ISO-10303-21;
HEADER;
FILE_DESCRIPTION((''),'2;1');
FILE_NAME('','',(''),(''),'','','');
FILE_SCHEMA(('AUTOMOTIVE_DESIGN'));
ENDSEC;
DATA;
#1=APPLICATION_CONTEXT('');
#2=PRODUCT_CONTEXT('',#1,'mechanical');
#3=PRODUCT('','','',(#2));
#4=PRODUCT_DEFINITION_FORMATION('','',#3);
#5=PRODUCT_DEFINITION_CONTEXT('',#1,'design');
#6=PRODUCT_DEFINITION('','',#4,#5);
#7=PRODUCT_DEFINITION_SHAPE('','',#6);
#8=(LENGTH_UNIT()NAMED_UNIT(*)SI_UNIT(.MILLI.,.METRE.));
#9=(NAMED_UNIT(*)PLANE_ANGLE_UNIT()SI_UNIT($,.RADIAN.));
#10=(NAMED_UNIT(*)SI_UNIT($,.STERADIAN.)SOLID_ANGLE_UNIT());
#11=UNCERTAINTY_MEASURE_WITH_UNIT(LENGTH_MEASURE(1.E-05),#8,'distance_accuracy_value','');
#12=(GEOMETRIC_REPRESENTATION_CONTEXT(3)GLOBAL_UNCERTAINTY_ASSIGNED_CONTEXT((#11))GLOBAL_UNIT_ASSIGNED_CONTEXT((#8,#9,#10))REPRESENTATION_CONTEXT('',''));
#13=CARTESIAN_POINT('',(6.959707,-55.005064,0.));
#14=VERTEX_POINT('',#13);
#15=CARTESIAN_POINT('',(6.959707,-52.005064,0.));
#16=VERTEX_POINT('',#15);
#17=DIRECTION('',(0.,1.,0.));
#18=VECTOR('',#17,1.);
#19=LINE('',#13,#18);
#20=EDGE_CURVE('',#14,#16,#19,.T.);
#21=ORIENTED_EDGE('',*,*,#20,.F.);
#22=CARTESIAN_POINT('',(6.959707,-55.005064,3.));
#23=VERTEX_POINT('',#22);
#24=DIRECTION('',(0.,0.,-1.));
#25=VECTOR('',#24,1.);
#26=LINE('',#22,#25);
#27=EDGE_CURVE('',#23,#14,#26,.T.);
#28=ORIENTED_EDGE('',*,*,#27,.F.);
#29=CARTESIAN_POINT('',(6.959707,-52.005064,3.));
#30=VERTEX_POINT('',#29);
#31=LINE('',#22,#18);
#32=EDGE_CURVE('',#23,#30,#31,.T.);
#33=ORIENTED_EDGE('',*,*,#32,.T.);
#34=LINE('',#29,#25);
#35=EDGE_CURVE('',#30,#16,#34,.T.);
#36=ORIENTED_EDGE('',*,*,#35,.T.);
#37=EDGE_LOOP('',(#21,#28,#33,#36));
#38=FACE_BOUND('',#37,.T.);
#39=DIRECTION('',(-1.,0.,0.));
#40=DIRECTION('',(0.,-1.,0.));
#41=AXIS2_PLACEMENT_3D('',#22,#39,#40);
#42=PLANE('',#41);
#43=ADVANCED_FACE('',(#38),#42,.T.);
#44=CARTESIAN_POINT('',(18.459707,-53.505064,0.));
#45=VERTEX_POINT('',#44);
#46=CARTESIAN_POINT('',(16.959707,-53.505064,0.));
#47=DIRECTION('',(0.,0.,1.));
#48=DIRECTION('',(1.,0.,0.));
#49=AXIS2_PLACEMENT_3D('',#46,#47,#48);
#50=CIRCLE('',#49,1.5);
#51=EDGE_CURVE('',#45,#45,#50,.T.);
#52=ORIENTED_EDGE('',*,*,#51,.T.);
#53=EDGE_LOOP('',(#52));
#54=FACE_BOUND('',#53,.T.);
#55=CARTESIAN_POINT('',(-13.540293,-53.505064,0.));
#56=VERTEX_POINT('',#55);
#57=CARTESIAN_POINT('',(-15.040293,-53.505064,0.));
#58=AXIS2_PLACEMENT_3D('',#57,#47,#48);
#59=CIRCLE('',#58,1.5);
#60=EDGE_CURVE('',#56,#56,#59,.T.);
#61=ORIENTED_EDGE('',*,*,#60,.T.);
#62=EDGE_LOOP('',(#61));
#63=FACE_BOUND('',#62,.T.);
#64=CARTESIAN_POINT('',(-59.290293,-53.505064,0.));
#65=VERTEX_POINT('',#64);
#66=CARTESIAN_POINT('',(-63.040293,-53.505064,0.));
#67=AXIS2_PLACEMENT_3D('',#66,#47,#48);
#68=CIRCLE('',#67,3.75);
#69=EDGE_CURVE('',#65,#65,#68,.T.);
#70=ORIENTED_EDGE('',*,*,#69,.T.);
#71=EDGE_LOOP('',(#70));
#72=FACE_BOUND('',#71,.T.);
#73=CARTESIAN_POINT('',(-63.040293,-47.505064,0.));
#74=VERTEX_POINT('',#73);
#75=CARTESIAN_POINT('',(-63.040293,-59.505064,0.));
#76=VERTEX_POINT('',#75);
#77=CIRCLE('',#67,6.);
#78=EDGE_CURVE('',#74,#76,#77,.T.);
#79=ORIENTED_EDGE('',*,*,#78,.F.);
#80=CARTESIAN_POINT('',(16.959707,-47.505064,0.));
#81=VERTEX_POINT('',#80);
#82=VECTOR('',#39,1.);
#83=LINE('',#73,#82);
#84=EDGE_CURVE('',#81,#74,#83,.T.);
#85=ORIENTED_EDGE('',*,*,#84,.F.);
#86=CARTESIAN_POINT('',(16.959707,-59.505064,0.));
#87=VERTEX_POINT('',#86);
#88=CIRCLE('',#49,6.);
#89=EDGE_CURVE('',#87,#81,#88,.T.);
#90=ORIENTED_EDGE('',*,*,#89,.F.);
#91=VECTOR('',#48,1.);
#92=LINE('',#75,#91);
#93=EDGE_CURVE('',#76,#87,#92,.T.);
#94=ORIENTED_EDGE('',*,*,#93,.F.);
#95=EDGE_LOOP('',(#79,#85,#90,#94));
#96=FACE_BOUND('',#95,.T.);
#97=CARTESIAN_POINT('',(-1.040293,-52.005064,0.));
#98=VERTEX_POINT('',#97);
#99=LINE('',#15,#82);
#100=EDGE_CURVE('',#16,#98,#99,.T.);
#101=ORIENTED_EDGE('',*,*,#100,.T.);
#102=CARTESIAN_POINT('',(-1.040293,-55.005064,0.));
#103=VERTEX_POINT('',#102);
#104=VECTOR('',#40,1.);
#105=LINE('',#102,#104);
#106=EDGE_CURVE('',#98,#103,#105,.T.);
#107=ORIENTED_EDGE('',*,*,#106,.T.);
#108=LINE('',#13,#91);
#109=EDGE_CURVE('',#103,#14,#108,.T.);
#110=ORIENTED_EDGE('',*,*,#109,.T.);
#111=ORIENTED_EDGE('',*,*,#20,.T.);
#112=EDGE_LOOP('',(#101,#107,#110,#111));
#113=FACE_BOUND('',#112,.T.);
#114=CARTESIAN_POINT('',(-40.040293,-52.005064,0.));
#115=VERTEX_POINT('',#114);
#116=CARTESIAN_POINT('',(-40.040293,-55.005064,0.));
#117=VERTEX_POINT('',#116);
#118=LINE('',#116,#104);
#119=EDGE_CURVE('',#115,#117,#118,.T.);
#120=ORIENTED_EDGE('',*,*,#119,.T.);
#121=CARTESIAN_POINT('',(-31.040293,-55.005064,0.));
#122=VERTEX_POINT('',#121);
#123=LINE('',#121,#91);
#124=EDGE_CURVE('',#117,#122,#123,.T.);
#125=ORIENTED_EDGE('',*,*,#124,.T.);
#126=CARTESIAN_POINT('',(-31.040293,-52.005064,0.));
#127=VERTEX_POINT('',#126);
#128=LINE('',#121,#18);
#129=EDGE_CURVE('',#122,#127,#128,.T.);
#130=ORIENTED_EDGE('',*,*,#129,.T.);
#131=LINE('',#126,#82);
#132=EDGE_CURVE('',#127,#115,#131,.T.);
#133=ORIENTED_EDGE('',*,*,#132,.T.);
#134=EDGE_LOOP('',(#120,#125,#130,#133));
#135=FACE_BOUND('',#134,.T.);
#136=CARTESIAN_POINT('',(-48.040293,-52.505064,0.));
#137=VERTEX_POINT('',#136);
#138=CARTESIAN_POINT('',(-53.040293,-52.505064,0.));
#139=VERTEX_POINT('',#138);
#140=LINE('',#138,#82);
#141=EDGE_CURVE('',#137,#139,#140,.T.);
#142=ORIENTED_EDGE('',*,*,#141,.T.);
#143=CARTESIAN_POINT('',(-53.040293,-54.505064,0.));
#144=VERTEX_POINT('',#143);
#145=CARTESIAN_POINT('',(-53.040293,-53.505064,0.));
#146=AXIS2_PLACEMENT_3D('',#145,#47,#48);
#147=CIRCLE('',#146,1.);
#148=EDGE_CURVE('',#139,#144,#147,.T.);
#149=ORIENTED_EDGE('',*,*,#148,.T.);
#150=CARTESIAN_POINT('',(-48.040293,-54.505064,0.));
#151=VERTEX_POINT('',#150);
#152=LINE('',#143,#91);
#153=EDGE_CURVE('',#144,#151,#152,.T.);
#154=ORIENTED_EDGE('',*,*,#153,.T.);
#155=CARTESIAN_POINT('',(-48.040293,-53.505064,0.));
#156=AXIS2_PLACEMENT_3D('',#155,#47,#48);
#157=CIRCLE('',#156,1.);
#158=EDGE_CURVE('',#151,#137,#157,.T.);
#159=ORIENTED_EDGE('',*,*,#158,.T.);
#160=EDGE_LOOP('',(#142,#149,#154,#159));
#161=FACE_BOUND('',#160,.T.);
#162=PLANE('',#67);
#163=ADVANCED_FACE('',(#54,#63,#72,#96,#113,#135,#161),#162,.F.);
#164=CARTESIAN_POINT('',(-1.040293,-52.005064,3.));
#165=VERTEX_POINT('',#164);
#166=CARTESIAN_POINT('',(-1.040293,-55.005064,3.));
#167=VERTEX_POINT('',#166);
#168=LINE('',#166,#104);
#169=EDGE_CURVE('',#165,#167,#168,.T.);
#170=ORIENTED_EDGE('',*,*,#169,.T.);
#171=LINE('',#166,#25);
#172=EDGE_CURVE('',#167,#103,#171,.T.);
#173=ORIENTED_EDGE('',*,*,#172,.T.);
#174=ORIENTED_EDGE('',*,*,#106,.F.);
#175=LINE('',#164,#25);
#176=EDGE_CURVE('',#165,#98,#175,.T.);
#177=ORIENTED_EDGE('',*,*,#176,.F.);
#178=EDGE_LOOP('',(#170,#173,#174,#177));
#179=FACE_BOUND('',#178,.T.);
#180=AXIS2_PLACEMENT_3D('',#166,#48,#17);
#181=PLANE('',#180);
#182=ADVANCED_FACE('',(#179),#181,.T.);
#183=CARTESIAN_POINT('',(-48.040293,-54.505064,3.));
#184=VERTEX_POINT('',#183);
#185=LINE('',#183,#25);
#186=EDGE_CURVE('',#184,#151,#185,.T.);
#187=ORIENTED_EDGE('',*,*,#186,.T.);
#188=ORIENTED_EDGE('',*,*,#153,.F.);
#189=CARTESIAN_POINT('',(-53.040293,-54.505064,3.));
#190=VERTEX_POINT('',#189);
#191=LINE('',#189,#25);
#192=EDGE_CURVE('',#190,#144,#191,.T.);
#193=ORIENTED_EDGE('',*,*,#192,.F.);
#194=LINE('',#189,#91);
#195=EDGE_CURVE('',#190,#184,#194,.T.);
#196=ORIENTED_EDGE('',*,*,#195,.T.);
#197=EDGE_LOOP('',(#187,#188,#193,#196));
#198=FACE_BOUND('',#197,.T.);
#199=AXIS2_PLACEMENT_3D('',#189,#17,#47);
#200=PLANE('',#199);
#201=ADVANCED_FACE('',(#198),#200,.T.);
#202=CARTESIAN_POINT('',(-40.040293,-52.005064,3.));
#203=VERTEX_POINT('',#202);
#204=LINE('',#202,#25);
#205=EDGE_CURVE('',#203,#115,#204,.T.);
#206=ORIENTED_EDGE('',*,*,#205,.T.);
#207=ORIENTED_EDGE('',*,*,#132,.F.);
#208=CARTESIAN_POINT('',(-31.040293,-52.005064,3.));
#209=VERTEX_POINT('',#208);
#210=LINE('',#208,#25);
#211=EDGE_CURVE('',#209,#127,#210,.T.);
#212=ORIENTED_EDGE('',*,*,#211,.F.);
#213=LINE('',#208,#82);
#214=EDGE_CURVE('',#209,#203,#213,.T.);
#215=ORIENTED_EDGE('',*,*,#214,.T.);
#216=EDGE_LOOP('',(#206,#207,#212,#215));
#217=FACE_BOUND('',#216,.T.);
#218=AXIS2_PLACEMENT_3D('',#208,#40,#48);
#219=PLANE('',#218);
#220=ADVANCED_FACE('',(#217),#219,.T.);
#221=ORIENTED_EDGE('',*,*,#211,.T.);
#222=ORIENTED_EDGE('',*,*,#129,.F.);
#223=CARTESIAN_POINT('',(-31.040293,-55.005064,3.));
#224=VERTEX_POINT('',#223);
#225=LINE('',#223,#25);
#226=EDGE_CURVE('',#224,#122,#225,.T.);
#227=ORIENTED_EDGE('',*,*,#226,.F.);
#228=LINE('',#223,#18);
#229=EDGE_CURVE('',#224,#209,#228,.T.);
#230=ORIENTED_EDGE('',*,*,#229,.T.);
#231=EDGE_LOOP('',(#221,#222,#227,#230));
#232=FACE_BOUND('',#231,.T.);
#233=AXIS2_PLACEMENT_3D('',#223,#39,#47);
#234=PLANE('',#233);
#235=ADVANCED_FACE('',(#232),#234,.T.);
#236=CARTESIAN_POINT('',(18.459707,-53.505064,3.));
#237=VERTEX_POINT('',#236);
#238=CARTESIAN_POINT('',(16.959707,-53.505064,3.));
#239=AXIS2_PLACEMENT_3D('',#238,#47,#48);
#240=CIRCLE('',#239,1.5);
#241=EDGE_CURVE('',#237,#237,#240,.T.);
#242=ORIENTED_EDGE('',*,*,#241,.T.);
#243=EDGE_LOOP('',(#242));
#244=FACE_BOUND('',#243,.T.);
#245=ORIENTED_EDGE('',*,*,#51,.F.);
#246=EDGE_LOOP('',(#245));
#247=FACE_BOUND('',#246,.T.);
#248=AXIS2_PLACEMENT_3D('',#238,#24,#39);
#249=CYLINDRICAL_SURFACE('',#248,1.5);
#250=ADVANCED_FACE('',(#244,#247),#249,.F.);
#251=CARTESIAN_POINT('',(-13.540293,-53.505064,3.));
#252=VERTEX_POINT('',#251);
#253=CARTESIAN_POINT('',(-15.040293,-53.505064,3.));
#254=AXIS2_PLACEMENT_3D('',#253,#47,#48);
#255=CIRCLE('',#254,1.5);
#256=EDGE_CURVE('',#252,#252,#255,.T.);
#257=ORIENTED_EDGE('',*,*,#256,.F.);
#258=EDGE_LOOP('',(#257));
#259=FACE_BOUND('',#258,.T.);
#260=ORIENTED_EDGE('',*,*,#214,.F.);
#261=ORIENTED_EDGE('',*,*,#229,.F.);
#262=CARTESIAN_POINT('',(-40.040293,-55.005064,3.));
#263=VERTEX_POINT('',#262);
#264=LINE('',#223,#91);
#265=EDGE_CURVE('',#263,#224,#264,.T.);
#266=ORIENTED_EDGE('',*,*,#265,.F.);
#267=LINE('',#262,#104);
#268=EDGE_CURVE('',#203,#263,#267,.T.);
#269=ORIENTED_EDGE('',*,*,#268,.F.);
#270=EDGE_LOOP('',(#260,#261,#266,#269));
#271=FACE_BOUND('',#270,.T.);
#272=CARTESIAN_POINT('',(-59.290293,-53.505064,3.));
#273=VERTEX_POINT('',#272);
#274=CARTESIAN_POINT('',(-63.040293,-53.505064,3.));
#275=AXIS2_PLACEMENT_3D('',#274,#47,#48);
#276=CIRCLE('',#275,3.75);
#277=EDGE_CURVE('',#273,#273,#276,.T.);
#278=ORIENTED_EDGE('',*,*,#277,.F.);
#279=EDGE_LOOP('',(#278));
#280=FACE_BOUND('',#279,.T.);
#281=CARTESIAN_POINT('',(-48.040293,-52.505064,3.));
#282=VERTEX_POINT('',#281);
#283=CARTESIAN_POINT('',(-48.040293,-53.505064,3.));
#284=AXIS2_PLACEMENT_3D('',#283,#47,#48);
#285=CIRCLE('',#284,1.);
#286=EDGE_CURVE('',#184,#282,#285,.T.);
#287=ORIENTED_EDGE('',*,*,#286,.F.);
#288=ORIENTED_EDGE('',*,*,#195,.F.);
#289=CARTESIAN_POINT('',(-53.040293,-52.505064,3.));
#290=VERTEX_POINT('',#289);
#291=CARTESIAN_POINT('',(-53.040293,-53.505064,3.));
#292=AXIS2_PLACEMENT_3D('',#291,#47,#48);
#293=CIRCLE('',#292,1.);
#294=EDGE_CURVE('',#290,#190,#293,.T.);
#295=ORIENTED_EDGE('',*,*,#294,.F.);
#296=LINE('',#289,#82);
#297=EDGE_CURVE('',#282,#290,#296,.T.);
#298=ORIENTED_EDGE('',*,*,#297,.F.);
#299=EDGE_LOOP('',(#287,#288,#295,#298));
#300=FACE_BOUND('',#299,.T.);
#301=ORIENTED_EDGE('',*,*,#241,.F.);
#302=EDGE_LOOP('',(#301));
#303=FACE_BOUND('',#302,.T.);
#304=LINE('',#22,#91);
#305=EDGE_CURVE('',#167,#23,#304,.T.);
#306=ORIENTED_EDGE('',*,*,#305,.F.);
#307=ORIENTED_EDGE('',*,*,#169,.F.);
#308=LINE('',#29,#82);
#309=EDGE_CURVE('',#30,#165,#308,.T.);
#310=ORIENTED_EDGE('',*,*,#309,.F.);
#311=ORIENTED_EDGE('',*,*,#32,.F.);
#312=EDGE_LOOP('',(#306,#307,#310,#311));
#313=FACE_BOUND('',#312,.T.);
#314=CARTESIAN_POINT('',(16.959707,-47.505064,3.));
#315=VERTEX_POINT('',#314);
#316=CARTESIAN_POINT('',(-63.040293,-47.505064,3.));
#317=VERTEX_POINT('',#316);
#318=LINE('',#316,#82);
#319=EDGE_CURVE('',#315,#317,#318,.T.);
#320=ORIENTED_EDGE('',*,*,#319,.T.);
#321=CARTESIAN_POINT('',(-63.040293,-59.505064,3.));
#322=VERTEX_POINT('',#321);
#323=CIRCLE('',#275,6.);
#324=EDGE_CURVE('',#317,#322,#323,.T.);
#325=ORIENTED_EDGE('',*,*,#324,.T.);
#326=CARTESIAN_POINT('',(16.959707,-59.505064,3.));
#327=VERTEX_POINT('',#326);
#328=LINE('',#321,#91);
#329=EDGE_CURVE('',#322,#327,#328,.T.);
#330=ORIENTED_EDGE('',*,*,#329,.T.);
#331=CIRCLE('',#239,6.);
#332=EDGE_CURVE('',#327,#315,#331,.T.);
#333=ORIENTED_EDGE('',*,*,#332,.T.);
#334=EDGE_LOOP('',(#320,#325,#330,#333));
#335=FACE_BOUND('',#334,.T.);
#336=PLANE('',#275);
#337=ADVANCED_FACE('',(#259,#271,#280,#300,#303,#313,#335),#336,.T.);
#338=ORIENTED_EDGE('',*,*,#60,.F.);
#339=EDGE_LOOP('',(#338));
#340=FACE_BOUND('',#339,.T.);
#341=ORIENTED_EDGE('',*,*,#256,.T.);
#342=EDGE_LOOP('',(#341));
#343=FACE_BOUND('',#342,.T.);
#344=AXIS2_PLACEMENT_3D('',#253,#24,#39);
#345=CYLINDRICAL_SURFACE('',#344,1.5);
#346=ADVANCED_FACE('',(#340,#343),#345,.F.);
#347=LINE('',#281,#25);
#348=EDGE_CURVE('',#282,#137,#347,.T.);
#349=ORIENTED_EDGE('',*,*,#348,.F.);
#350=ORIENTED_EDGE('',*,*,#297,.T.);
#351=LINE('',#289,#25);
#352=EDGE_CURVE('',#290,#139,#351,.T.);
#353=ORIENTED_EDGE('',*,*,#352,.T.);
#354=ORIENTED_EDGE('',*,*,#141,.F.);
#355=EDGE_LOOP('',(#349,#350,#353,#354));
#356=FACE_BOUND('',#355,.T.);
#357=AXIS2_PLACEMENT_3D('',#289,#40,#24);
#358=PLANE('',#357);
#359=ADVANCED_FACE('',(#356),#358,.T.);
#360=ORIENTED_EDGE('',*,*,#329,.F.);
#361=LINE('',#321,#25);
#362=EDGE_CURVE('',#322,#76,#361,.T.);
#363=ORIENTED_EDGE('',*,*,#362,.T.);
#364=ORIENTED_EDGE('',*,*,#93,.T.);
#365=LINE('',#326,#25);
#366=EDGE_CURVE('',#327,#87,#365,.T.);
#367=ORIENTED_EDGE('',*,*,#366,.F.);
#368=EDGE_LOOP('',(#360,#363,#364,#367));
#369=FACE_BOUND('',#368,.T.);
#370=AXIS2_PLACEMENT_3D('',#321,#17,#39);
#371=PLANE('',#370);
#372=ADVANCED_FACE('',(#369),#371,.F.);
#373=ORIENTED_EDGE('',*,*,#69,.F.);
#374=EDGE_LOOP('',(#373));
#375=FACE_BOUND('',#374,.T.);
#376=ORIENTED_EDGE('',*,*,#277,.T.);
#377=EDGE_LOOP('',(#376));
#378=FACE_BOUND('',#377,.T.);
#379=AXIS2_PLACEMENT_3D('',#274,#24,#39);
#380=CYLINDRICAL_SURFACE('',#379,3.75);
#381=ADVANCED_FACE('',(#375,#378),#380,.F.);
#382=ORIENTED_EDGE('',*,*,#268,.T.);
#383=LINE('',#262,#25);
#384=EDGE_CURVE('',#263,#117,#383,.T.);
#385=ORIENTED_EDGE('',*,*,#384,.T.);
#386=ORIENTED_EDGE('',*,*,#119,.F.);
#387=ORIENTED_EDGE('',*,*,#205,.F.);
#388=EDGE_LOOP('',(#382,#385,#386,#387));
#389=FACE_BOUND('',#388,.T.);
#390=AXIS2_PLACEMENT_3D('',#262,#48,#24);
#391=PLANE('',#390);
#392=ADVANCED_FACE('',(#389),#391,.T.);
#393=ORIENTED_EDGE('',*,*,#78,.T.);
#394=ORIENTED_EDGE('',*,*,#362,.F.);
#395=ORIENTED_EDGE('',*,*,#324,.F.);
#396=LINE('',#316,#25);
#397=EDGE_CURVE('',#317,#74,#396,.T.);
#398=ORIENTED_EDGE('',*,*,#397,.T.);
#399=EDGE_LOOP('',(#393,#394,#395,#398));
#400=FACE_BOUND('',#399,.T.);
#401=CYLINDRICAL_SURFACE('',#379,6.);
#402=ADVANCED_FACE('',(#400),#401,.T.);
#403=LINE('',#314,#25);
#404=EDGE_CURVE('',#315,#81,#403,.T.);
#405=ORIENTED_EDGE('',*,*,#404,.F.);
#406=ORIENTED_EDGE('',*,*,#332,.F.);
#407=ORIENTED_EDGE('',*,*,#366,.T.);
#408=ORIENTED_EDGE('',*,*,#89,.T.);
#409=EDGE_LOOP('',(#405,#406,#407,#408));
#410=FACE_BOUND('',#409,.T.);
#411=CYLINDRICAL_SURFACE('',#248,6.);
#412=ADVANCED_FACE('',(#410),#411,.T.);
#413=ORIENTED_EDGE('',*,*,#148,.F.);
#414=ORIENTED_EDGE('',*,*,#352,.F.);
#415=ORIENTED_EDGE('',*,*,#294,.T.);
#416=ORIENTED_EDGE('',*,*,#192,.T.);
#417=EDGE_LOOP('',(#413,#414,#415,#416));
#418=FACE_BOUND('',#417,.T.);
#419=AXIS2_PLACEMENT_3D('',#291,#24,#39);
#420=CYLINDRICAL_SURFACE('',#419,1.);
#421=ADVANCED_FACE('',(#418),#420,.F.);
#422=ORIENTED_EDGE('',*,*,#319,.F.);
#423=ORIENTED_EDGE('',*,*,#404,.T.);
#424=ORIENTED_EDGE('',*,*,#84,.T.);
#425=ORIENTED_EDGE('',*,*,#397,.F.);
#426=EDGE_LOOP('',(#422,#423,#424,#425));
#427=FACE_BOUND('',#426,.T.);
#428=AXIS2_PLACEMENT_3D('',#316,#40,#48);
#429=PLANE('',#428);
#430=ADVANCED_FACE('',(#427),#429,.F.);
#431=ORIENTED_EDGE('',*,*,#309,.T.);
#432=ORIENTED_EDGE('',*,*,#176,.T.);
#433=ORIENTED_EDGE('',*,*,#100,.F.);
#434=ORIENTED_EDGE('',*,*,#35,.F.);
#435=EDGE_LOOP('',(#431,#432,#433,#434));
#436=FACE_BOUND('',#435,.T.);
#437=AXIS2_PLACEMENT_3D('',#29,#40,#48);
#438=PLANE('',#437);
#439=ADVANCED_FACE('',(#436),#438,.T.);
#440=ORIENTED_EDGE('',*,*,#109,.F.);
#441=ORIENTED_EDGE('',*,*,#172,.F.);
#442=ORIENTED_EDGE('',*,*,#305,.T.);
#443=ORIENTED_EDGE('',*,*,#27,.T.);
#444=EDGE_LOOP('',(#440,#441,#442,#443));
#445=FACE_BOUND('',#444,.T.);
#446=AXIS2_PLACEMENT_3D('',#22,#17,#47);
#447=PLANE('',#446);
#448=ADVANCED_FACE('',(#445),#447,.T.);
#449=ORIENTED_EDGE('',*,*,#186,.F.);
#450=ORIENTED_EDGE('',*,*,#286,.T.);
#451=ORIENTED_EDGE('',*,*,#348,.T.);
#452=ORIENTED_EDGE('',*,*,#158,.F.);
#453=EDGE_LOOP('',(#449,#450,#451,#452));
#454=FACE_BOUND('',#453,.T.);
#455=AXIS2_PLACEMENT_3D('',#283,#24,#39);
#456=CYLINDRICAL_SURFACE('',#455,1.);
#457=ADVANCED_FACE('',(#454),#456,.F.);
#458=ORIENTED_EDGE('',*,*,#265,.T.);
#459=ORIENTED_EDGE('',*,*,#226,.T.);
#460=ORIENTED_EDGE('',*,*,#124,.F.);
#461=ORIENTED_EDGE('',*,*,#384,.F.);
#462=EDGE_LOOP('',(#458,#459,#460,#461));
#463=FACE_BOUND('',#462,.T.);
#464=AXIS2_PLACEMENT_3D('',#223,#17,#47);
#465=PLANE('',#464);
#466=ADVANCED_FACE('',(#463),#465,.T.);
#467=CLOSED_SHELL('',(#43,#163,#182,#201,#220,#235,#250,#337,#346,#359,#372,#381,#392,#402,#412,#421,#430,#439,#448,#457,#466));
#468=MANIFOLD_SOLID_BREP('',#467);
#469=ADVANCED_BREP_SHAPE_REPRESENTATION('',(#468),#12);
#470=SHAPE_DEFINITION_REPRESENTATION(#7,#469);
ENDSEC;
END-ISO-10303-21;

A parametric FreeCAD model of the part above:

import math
import FreeCAD as App
import Part
import Sketcher

V = App.Vector
Q = App.Units.Quantity


def add_polygon(sketch, points):
    """Adds a closed chain of lines whose ends are joined by coincident constraints."""
    first, n = sketch.GeometryCount, len(points)
    for a, b in zip(points, points[1:] + points[:1]):
        sketch.addGeometry(Part.LineSegment(App.Vector(*a, 0), App.Vector(*b, 0)), False)
    for i in range(n):
        sketch.addConstraint(Sketcher.Constraint("Coincident", first + i, 2, first + (i + 1) % n, 1))

doc = App.newDocument("Part")
body = doc.addObject("PartDesign::Body", "Body")

# Sketch on XY plane
sketch1 = body.newObject("Sketcher::SketchObject", "Sketch")
sketch1.AttachmentSupport = (doc.getObject("XY_Plane"), [""])
sketch1.MapMode = "FlatFace"
sketch1.addGeometry(Part.LineSegment(V(16.959707, -47.505064, 0), V(-63.040293, -47.505064, 0)), False)  # 0
sketch1.addGeometry(Part.ArcOfCircle(Part.Circle(V(-63.040293, -53.505064, 0), V(0, 0, 1), 6), math.radians(90), math.radians(270)), False)  # 1
sketch1.addGeometry(Part.LineSegment(V(-63.040293, -59.505064, 0), V(16.959707, -59.505064, 0)), False)  # 2
sketch1.addGeometry(Part.ArcOfCircle(Part.Circle(V(16.959707, -53.505064, 0), V(0, 0, 1), 6), math.radians(-90), math.radians(90)), False)  # 3
sketch1.addGeometry(Part.Circle(V(16.959707, -53.505064, 0), V(0, 0, 1), 1.5), False)  # 4
add_polygon(sketch1, [(-1.040293, -55.005064), (-1.040293, -52.005064), (6.959707, -52.005064), (6.959707, -55.005064)])  # lines 5-8
sketch1.addGeometry(Part.Circle(V(-15.040293, -53.505064, 0), V(0, 0, 1), 1.5), False)  # 9
add_polygon(sketch1, [(-40.040293, -55.005064), (-40.040293, -52.005064), (-31.040293, -52.005064), (-31.040293, -55.005064)])  # lines 10-13
sketch1.addGeometry(Part.LineSegment(V(-53.040293, -52.505064, 0), V(-48.040293, -52.505064, 0)), False)  # 14
sketch1.addGeometry(Part.ArcOfCircle(Part.Circle(V(-48.040293, -53.505064, 0), V(0, 0, 1), 1), math.radians(-90), math.radians(90)), False)  # 15
sketch1.addGeometry(Part.LineSegment(V(-48.040293, -54.505064, 0), V(-53.040293, -54.505064, 0)), False)  # 16
sketch1.addGeometry(Part.ArcOfCircle(Part.Circle(V(-53.040293, -53.505064, 0), V(0, 0, 1), 1), math.radians(90), math.radians(270)), False)  # 17
sketch1.addGeometry(Part.Circle(V(-63.040293, -53.505064, 0), V(0, 0, 1), 3.75), False)  # 18
sketch1.addConstraint([
    Sketcher.Constraint("Tangent", 0, 2, 1, 1),
    Sketcher.Constraint("Tangent", 1, 2, 2, 1),
    Sketcher.Constraint("Tangent", 2, 2, 3, 1),
    Sketcher.Constraint("Tangent", 3, 2, 0, 1),
    Sketcher.Constraint("Tangent", 14, 2, 15, 2),
    Sketcher.Constraint("Tangent", 15, 1, 16, 1),
    Sketcher.Constraint("Tangent", 16, 2, 17, 2),
    Sketcher.Constraint("Tangent", 17, 1, 14, 1),
    Sketcher.Constraint("Horizontal", 0),
    Sketcher.Constraint("Horizontal", 2),
    Sketcher.Constraint("Vertical", 5),
    Sketcher.Constraint("Horizontal", 6),
    Sketcher.Constraint("Vertical", 7),
    Sketcher.Constraint("Horizontal", 8),
    Sketcher.Constraint("Vertical", 10),
    Sketcher.Constraint("Horizontal", 11),
    Sketcher.Constraint("Vertical", 12),
    Sketcher.Constraint("Horizontal", 13),
    Sketcher.Constraint("Horizontal", 14),
    Sketcher.Constraint("Horizontal", 16),
    Sketcher.Constraint("Coincident", 4, 3, 3, 3),
    Sketcher.Constraint("Coincident", 18, 3, 1, 3),
    Sketcher.Constraint("Equal", 4, 9),
    Sketcher.Constraint("Horizontal", 4, 3, 9, 3),
    Sketcher.Constraint("Horizontal", 9, 3, 15, 3),
    Sketcher.Constraint("Horizontal", 6, 2, 10, 2),
    Sketcher.Constraint("Horizontal", 8, 2, 12, 2),
    Sketcher.Constraint("Diameter", 4, Q("3 mm")),
    Sketcher.Constraint("Radius", 1, Q("6 mm")),
    Sketcher.Constraint("Radius", 15, Q("1 mm")),
    Sketcher.Constraint("Diameter", 18, Q("7.5 mm")),
    Sketcher.Constraint("DistanceX", 0, 2, 0, 1, Q("80 mm")),
    Sketcher.Constraint("DistanceX", 6, 1, 6, 2, Q("8 mm")),
    Sketcher.Constraint("DistanceX", 11, 1, 11, 2, Q("9 mm")),
    Sketcher.Constraint("DistanceX", 14, 1, 14, 2, Q("5 mm")),
    Sketcher.Constraint("DistanceY", 5, 1, 5, 2, Q("3 mm")),
    Sketcher.Constraint("DistanceX", 9, 3, 3, 3, Q("32 mm")),
    Sketcher.Constraint("DistanceX", 1, 3, 15, 3, Q("15 mm")),
    Sketcher.Constraint("DistanceX", 9, 3, 5, 2, Q("14 mm")),
    Sketcher.Constraint("DistanceX", 15, 3, 10, 2, Q("8 mm")),
    Sketcher.Constraint("DistanceY", 9, 3, 5, 2, Q("1.5 mm")),
    Sketcher.Constraint("DistanceX", 1, 3, -1, 1, Q("63.040293 mm")),
    Sketcher.Constraint("DistanceY", 1, 3, -1, 1, Q("53.505064 mm")),
])
pad1 = body.newObject("PartDesign::Pad", "Pad")
pad1.Profile = sketch1
pad1.Length = 3

doc.recompute()
